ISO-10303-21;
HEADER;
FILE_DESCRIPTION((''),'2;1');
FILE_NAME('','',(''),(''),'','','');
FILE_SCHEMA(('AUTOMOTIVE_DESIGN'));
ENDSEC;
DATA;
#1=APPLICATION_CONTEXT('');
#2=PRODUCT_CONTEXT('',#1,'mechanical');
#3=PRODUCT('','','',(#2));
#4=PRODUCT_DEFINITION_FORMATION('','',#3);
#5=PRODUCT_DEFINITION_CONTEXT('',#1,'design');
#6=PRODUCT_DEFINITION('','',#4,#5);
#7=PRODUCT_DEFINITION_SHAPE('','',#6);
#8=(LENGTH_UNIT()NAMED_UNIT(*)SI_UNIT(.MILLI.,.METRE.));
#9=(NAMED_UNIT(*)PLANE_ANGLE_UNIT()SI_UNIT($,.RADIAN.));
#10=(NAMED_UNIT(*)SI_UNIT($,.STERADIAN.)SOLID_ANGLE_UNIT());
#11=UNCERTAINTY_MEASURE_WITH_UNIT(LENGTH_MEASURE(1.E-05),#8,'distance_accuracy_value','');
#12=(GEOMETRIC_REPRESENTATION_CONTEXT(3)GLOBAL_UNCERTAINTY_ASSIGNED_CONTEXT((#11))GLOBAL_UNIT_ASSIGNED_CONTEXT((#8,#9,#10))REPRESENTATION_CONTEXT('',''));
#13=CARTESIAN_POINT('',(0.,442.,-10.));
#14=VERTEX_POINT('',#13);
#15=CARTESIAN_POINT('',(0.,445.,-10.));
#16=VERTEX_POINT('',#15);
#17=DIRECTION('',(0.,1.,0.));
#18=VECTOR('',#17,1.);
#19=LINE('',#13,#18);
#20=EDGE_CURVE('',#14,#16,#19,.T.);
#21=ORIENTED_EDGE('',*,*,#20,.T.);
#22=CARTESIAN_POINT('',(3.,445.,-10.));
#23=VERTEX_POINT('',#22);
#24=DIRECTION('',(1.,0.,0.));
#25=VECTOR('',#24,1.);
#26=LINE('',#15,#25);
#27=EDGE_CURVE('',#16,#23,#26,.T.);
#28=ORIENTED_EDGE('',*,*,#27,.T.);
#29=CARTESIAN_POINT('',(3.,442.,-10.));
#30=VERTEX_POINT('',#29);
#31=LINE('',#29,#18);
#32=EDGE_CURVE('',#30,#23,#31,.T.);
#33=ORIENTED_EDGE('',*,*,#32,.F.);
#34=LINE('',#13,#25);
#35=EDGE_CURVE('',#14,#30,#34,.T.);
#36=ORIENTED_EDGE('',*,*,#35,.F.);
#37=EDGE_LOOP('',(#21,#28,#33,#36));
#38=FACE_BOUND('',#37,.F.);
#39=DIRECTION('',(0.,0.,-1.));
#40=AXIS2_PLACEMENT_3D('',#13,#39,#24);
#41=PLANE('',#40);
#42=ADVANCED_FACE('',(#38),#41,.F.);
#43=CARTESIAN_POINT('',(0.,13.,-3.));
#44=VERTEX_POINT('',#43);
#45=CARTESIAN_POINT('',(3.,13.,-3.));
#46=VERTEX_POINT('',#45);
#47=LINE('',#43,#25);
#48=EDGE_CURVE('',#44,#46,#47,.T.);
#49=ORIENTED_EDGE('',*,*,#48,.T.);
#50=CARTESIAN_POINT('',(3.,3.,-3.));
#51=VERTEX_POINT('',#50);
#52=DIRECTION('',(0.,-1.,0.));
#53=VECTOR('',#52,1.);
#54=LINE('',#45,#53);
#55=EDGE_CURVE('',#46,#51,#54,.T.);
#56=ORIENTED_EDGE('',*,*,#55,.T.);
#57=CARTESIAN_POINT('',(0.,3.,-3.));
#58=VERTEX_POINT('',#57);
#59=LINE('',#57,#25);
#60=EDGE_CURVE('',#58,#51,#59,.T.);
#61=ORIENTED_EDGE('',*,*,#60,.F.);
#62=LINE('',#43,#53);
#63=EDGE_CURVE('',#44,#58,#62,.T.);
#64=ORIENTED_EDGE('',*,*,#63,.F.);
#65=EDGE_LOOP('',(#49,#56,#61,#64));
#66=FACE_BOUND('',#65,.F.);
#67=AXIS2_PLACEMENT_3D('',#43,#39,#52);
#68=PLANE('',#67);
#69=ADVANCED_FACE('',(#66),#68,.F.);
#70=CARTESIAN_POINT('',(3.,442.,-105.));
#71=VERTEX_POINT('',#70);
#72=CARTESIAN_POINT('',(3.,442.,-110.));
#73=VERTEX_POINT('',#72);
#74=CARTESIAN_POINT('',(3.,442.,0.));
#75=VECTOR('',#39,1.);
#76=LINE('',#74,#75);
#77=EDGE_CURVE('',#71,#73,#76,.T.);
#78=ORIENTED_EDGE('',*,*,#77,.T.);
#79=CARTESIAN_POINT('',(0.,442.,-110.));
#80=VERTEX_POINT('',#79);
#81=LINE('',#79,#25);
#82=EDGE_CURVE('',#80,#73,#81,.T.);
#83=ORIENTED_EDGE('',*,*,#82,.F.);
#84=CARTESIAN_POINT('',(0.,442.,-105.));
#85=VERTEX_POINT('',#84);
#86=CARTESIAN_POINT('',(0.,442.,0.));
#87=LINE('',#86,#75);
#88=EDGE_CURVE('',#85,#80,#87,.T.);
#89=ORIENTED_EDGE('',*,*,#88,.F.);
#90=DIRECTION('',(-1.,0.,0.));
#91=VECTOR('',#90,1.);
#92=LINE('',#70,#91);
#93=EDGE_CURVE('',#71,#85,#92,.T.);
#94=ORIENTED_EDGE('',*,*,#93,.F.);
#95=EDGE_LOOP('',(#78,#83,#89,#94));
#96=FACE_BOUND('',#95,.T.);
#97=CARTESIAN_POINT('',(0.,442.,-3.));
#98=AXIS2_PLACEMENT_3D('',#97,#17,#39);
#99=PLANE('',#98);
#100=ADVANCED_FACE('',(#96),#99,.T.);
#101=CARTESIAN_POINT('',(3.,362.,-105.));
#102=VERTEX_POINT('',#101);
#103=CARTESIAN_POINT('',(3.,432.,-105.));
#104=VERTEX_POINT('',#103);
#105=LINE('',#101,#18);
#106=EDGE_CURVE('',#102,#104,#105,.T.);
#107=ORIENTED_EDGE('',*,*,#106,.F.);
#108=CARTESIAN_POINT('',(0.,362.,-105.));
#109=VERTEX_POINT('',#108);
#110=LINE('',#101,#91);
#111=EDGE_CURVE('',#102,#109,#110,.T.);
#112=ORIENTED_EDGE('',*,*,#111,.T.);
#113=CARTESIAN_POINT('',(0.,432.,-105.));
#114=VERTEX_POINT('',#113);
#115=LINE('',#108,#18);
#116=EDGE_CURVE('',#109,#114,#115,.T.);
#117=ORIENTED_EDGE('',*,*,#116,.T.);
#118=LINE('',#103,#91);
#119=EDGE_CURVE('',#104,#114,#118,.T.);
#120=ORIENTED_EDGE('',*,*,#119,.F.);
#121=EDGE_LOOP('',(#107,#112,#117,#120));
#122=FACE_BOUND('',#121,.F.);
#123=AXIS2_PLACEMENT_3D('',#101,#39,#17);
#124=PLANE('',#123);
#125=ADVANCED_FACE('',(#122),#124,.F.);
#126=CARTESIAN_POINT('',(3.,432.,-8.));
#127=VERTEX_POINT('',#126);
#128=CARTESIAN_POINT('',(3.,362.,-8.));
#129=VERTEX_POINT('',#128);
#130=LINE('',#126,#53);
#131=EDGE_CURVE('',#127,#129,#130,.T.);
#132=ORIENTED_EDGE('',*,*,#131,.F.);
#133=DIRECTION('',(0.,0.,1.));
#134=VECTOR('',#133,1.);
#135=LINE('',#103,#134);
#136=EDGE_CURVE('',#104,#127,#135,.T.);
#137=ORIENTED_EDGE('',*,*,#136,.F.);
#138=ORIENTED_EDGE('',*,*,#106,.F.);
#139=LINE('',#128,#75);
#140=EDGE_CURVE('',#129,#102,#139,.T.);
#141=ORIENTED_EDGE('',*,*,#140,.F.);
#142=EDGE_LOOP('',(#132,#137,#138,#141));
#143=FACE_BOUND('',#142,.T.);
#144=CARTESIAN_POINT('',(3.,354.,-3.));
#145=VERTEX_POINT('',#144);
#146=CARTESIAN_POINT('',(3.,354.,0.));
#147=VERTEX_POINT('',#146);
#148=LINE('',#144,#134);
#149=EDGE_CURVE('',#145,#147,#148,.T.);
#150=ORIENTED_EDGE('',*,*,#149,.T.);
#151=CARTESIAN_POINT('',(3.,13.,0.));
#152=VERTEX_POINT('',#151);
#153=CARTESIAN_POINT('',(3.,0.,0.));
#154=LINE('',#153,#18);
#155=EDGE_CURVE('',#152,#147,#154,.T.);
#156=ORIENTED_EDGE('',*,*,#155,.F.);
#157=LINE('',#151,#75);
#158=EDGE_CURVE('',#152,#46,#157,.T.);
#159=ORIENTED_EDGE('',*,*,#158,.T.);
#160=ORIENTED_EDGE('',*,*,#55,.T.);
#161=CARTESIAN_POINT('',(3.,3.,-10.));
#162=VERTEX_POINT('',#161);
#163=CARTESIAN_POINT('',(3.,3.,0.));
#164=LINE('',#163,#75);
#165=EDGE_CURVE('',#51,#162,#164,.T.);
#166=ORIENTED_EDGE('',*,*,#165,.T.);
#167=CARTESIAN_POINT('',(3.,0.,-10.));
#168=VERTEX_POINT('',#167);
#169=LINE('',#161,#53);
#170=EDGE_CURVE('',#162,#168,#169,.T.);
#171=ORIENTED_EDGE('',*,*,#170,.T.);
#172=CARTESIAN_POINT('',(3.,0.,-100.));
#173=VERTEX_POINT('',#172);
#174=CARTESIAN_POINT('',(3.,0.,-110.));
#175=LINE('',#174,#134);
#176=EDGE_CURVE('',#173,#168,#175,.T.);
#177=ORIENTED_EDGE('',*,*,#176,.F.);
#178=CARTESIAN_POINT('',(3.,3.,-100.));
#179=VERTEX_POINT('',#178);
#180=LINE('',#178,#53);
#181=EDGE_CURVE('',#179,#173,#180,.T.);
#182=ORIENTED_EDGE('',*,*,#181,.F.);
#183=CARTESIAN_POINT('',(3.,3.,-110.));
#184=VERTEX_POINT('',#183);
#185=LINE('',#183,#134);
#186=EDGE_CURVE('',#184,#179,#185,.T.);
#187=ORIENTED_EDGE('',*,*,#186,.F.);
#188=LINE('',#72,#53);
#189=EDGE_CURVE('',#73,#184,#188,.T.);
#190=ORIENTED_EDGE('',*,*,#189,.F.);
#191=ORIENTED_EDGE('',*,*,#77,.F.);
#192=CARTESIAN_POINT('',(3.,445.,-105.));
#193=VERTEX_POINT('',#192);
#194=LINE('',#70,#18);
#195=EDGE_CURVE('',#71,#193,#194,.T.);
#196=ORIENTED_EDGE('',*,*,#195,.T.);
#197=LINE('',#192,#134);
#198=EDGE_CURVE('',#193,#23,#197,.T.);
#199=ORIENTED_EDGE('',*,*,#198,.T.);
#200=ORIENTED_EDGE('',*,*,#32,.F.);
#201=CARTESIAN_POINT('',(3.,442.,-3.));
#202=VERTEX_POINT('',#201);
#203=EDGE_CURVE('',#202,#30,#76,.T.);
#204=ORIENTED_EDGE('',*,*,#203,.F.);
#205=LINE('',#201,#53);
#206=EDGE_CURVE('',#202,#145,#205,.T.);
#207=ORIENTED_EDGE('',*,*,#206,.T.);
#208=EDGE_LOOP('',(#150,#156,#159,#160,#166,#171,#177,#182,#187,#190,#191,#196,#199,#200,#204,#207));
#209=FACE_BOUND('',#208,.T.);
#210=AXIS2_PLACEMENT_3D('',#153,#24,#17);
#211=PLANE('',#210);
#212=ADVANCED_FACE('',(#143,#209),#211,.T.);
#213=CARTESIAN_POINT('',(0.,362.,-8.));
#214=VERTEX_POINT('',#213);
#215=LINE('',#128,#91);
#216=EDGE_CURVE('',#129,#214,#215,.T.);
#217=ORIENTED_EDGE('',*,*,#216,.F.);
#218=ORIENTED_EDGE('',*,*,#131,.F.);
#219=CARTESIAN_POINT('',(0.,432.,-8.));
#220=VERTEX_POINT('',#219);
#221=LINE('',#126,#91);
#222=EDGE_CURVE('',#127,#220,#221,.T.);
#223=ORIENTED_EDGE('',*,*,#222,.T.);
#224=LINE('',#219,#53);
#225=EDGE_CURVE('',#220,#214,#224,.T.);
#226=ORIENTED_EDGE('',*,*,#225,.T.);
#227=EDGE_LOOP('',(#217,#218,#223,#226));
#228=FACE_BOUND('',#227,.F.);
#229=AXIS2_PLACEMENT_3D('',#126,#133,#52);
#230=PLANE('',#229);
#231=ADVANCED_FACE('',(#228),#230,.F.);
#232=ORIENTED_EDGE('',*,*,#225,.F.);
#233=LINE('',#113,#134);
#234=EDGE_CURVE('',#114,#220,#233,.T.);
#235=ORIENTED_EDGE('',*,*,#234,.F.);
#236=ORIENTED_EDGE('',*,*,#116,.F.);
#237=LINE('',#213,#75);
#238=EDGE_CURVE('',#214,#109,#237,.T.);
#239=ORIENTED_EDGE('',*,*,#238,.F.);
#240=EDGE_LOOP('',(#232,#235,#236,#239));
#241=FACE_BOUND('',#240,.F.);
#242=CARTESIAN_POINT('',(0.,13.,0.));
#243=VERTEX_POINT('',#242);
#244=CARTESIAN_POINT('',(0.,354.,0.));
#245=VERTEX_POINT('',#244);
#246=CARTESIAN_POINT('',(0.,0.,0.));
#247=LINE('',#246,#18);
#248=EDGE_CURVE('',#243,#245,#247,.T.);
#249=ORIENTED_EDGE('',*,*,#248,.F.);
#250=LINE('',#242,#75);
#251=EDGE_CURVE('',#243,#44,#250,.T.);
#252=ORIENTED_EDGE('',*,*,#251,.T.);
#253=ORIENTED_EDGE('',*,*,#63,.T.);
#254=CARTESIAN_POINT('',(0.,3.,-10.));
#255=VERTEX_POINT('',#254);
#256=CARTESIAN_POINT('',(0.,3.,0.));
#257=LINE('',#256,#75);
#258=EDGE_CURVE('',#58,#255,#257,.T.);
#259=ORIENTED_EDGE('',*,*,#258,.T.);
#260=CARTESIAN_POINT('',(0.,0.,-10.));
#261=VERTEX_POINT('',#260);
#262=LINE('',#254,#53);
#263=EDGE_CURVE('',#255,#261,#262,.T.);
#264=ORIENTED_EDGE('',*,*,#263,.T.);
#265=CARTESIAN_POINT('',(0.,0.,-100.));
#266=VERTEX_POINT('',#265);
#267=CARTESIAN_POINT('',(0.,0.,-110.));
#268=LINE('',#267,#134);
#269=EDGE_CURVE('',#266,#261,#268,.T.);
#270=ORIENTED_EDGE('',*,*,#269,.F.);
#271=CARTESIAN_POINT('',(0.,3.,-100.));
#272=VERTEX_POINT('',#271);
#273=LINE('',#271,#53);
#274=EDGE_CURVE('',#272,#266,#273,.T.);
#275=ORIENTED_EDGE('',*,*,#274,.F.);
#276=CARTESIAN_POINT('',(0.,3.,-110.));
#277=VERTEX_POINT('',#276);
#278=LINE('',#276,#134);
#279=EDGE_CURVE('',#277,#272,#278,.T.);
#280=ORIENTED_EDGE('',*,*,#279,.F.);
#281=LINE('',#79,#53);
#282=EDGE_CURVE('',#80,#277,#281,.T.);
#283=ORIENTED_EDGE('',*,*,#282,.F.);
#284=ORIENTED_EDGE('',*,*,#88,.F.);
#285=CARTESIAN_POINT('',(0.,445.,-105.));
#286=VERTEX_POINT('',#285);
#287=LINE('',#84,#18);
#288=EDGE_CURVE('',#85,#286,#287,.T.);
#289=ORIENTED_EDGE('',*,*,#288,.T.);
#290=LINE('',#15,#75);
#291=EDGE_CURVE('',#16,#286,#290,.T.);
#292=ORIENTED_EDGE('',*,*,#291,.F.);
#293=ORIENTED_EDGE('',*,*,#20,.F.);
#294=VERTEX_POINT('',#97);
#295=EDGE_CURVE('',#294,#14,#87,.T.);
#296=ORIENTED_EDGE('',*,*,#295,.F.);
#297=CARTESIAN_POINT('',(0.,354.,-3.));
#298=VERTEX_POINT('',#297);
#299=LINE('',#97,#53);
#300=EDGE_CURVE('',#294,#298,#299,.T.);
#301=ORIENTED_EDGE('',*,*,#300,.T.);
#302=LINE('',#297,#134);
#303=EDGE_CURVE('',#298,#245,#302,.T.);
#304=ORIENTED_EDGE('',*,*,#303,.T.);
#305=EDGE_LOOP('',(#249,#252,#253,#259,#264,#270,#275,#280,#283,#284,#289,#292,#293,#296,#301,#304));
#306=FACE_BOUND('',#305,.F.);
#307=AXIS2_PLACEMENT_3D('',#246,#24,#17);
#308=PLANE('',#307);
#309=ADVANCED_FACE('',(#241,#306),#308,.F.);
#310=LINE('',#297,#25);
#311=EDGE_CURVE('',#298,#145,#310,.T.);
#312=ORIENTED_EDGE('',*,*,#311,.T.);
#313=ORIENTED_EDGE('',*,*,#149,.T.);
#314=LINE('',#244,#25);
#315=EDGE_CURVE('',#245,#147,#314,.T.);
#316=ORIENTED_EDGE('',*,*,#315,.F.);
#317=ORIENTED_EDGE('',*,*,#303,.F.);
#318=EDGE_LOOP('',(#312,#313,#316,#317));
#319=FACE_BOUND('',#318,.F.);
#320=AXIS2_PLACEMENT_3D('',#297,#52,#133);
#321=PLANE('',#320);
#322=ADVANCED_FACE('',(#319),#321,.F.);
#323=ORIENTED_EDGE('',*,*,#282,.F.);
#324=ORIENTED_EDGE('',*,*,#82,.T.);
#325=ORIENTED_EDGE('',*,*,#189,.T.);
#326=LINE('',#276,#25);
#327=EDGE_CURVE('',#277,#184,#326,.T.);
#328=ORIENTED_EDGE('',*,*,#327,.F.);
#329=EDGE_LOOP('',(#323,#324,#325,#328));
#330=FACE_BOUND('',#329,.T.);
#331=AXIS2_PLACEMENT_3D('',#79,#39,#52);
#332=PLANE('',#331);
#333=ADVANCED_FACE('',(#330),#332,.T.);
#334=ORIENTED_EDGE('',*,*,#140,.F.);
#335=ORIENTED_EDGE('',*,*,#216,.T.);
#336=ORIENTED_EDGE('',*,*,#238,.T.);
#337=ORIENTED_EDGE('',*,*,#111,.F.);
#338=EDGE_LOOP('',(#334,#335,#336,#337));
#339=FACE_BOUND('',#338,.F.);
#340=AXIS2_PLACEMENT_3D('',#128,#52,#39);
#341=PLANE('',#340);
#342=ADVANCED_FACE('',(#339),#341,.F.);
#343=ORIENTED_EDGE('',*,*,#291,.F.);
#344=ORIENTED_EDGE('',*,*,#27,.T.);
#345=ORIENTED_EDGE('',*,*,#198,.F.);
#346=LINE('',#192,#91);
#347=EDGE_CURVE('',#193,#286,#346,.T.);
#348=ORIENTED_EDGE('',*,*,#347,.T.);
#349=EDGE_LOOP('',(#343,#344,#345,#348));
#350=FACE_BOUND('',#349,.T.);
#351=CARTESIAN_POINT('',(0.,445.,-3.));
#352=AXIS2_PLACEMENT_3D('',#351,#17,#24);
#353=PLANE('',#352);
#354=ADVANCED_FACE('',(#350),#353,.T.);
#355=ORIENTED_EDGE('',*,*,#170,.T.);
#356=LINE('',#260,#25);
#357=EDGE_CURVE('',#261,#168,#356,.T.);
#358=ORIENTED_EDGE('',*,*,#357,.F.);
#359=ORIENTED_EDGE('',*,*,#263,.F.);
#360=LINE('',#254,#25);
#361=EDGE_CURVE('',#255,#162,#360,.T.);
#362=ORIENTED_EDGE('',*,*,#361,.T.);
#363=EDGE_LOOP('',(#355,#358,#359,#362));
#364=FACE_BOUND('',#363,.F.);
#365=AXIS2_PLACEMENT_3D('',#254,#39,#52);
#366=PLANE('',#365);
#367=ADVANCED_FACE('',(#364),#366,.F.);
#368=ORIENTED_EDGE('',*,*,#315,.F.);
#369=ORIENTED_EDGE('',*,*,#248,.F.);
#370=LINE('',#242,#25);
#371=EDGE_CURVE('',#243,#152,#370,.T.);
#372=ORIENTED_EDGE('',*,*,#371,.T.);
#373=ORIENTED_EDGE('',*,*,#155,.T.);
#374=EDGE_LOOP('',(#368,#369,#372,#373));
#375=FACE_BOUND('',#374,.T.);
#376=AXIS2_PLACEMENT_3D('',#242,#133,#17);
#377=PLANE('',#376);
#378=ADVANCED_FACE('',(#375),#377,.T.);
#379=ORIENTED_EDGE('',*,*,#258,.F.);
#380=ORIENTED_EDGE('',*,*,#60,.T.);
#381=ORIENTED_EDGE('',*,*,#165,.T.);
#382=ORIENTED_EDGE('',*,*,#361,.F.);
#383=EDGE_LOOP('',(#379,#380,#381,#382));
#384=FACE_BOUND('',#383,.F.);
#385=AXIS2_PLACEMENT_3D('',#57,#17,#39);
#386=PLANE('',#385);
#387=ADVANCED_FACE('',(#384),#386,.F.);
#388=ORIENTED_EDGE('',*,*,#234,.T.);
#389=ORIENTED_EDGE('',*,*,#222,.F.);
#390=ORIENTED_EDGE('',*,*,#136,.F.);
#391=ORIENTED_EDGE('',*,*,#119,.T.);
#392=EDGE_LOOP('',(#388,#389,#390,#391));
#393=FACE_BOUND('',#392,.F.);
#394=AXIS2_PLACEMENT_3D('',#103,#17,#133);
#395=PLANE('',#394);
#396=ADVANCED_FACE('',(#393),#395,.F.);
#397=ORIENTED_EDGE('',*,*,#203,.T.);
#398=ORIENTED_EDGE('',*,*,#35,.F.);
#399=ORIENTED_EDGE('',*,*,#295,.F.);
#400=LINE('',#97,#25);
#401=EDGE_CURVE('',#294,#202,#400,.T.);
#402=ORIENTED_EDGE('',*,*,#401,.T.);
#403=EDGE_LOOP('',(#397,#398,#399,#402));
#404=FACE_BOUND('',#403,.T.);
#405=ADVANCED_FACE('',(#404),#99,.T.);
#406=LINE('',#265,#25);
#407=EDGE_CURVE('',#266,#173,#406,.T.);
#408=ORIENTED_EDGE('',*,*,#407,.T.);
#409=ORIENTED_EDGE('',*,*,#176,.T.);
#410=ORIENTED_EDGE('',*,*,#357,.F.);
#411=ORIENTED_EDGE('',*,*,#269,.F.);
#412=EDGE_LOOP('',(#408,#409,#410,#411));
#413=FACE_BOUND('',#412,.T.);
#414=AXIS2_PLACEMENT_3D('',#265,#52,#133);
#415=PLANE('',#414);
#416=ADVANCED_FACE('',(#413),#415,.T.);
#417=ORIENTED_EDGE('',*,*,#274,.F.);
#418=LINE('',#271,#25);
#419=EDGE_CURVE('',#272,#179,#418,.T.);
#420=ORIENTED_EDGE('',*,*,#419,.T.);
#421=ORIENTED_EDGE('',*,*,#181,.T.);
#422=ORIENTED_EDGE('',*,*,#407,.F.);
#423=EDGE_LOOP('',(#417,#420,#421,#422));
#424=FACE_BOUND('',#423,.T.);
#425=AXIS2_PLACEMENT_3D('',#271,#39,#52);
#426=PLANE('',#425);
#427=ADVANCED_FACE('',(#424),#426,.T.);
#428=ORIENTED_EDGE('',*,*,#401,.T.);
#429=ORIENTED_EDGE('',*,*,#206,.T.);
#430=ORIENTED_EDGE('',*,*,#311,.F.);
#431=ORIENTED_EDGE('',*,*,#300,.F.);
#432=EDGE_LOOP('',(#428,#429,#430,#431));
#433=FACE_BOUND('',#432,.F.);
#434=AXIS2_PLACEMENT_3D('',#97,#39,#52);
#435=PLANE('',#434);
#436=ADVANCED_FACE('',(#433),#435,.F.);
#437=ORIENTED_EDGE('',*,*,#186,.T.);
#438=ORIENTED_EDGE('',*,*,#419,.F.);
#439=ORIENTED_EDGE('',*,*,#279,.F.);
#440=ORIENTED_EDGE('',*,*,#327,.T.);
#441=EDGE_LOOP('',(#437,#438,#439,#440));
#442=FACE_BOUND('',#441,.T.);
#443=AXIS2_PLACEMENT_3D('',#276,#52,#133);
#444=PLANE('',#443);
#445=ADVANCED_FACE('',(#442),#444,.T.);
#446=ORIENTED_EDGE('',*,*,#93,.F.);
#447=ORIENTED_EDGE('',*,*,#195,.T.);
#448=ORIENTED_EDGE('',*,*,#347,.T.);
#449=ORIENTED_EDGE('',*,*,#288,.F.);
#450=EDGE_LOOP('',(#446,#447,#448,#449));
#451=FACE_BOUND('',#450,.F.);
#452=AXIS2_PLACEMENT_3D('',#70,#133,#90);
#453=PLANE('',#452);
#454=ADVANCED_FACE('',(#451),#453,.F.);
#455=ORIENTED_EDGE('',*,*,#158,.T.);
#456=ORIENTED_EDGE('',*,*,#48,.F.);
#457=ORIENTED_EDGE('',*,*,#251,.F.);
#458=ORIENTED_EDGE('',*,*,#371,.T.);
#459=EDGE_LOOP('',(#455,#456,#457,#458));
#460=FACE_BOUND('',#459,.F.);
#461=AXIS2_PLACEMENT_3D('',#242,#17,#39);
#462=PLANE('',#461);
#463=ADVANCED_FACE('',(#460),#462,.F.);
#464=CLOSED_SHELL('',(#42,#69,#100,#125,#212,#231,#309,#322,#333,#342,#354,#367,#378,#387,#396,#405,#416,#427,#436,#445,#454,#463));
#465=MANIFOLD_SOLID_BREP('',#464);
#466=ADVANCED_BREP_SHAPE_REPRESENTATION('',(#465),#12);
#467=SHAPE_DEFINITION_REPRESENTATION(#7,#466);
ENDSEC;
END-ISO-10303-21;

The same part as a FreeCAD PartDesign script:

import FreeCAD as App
import Part
import Sketcher


def add_polygon(sketch, points):
    """Adds a closed chain of lines whose ends are joined by coincident constraints."""
    first, n = sketch.GeometryCount, len(points)
    for a, b in zip(points, points[1:] + points[:1]):
        sketch.addGeometry(Part.LineSegment(App.Vector(*a, 0), App.Vector(*b, 0)), False)
    for i in range(n):
        sketch.addConstraint(Sketcher.Constraint("Coincident", first + i, 2, first + (i + 1) % n, 1))

doc = App.newDocument("Part")
body = doc.addObject("PartDesign::Body", "Body")

# Sketch on YZ plane
sketch1 = body.newObject("Sketcher::SketchObject", "Sketch")
sketch1.AttachmentSupport = (doc.getObject("YZ_Plane"), [""])
sketch1.MapMode = "FlatFace"
add_polygon(sketch1, [(3, -10), (0, -10), (0, -100), (3, -100), (3, -110), (442, -110), (442, -3), (354, -3), (354, 0), (13, 0), (13, -3), (3, -3)])  # lines 0-11
sketch1.addConstraint([
    Sketcher.Constraint("Horizontal", 0),
    Sketcher.Constraint("Vertical", 1),
    Sketcher.Constraint("Horizontal", 2),
    Sketcher.Constraint("Vertical", 3),
    Sketcher.Constraint("Horizontal", 4),
    Sketcher.Constraint("Vertical", 5),
    Sketcher.Constraint("Horizontal", 6),
    Sketcher.Constraint("Vertical", 7),
    Sketcher.Constraint("Horizontal", 8),
    Sketcher.Constraint("Vertical", 9),
    Sketcher.Constraint("Horizontal", 10),
    Sketcher.Constraint("Vertical", 11),
    Sketcher.Constraint("PointOnObject", 0, 2, -2),
    Sketcher.Constraint("PointOnObject", 7, 2, -1),
    Sketcher.Constraint("Horizontal", 6, 2, 9, 2),
    Sketcher.Constraint("Vertical", 3, 2, 10, 2),
    Sketcher.Constraint("Equal", 10, 3),
    Sketcher.Constraint("Equal", 2, 7),
    Sketcher.Constraint("DistanceX", 0, 2, 0, 1, 3.0),
    Sketcher.Constraint("DistanceX", 6, 2, 6, 1, 88.0),
    Sketcher.Constraint("DistanceX", 10, 2, 10, 1, 10.0),
    Sketcher.Constraint("DistanceY", 0, 2, -1, 1, 10.0),
    Sketcher.Constraint("DistanceY", 3, 2, -1, 1, 110.0),
    Sketcher.Constraint("DistanceX", -1, 1, 4, 2, 442.0),
])
pad1 = body.newObject("PartDesign::Pad", "Pad")
pad1.Profile = sketch1
pad1.Length = 3

# Sketch on XZ plane
sketch2 = body.newObject("Sketcher::SketchObject", "Sketch001")
sketch2.AttachmentSupport = (doc.getObject("XZ_Plane"), [""])
sketch2.MapMode = "FlatFace"
sketch2.AttachmentOffset = App.Placement(App.Vector(0, 0, -442), App.Rotation())
add_polygon(sketch2, [(0, -105), (0, -10), (3, -10), (3, -105)])  # lines 0-3
sketch2.addConstraint([
    Sketcher.Constraint("Vertical", 0),
    Sketcher.Constraint("Horizontal", 1),
    Sketcher.Constraint("Vertical", 2),
    Sketcher.Constraint("Horizontal", 3),
    Sketcher.Constraint("PointOnObject", 0, 2, -2),
    Sketcher.Constraint("DistanceX", 1, 1, 1, 2, 3.0),
    Sketcher.Constraint("DistanceY", 0, 1, 0, 2, 95.0),
    Sketcher.Constraint("DistanceY", 0, 2, -1, 1, 10.0),
])
pad2 = body.newObject("PartDesign::Pad", "Pad001")
pad2.Profile = sketch2
pad2.Length = 3
pad2.Reversed = True

# Sketch on YZ plane
sketch3 = body.newObject("Sketcher::SketchObject", "Sketch002")
sketch3.AttachmentSupport = (doc.getObject("YZ_Plane"), [""])
sketch3.MapMode = "FlatFace"
sketch3.AttachmentOffset = App.Placement(App.Vector(0, 0, 3), App.Rotation())
add_polygon(sketch3, [(432, -105), (432, -8), (362, -8), (362, -105)])  # lines 0-3
sketch3.addConstraint([
    Sketcher.Constraint("Vertical", 0),
    Sketcher.Constraint("Horizontal", 1),
    Sketcher.Constraint("Vertical", 2),
    Sketcher.Constraint("Horizontal", 3),
    Sketcher.Constraint("DistanceX", 1, 2, 1, 1, 70.0),
    Sketcher.Constraint("DistanceY", 0, 1, 0, 2, 97.0),
    Sketcher.Constraint("DistanceX", -1, 1, 0, 2, 432.0),
    Sketcher.Constraint("DistanceY", 0, 2, -1, 1, 8.0),
])
pocket1 = body.newObject("PartDesign::Pocket", "Pocket")
pocket1.Profile = sketch3
pocket1.Length = 3

doc.recompute()
